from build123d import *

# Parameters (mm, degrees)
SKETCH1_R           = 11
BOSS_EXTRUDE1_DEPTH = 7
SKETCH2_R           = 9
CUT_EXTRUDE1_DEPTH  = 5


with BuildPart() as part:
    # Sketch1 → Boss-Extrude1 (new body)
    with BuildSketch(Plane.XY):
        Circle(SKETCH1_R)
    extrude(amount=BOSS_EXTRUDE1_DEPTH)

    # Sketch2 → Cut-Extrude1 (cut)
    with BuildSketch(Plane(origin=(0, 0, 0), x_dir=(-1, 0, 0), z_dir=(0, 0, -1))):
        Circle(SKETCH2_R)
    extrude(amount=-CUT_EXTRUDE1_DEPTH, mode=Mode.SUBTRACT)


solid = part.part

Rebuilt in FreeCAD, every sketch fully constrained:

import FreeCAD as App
import Part
import Sketcher
from FreeCAD import Vector
Q = App.Units.Quantity

doc = App.newDocument("Part")
body = doc.addObject("PartDesign::Body", "Body")

# Sketch on XY plane
sketch1 = doc.addObject("Sketcher::SketchObject", "Sketch")
body.addObject(sketch1)
sketch1.AttachmentSupport = (doc.XY_Plane, [""])
sketch1.MapMode = "FlatFace"
sketch1.addGeometry(Part.Circle(Vector(0, 0, 0), Vector(0, 0, 1), 11), False)
sketch1.addConstraint([
    Sketcher.Constraint("Coincident", 0, 3, -1, 1),
    Sketcher.Constraint("Diameter", 0, Q("22 mm")),
])
pad1 = doc.addObject("PartDesign::Pad", "Pad")
body.addObject(pad1)
pad1.Profile = sketch1
pad1.Length = 7

# Sketch on XY plane
sketch2 = doc.addObject("Sketcher::SketchObject", "Sketch001")
body.addObject(sketch2)
sketch2.AttachmentSupport = (doc.XY_Plane, [""])
sketch2.MapMode = "FlatFace"
sketch2.addGeometry(Part.Circle(Vector(0, 0, 0), Vector(0, 0, 1), 9), False)
sketch2.addConstraint([
    Sketcher.Constraint("Coincident", 0, 3, -1, 1),
    Sketcher.Constraint("Diameter", 0, Q("18 mm")),
])
pocket1 = doc.addObject("PartDesign::Pocket", "Pocket")
body.addObject(pocket1)
pocket1.Profile = sketch2
pocket1.Length = 5
pocket1.Reversed = True

doc.recompute()
